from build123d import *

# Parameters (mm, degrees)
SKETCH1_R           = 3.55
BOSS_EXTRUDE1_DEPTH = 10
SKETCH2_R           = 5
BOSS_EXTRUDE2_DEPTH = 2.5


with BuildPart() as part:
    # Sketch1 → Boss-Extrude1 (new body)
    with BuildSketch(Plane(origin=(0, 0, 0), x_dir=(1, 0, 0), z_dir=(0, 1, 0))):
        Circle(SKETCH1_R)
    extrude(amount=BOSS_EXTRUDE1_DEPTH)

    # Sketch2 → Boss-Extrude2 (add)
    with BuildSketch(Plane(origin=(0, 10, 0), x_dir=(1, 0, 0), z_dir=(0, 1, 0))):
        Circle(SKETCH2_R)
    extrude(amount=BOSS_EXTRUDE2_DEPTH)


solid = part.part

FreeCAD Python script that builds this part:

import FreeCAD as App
import Part
import Sketcher

doc = App.newDocument("Part")
params = doc.addObject("Spreadsheet::Sheet", "Params")
for row, (alias, value) in enumerate([
    ("sketch1_diameter", "7.1 mm"),
    ("pad1_length", "10 mm"),
    ("sketch2_diameter", "10 mm"),
    ("pad2_length", "2.5 mm"),
], start=1):
    params.set(f"A{row}", alias)
    params.set(f"B{row}", "=" + value)
    params.setAlias(f"B{row}", alias)

body = doc.addObject("PartDesign::Body", "Body")

# Sketch on XZ plane
sketch1 = body.newObject("Sketcher::SketchObject", "Sketch")
sketch1.AttachmentSupport = (doc.getObject("XZ_Plane"), [""])
sketch1.MapMode = "FlatFace"
sketch1.addGeometry(Part.Circle(App.Vector(0, 0, 0), App.Vector(0, 0, 1), 3.5), False)
sketch1.addConstraint(Sketcher.Constraint("Coincident", 0, 3, -1, 1))
sketch1.addConstraint(Sketcher.Constraint("Diameter", 0, 7.1))
sketch1.setExpression("Constraints[1]", "Params.sketch1_diameter")
pad1 = body.newObject("PartDesign::Pad", "Pad")
pad1.Profile = sketch1
pad1.setExpression("Length", "Params.pad1_length")
pad1.Reversed = True

# Sketch on XZ plane
sketch2 = body.newObject("Sketcher::SketchObject", "Sketch001")
sketch2.AttachmentSupport = (doc.getObject("XZ_Plane"), [""])
sketch2.MapMode = "FlatFace"
sketch2.AttachmentOffset = App.Placement(App.Vector(0, 0, -10), App.Rotation())
sketch2.addGeometry(Part.Circle(App.Vector(0, 0, 0), App.Vector(0, 0, 1), 5), False)
sketch2.addConstraint(Sketcher.Constraint("Coincident", 0, 3, -1, 1))
sketch2.addConstraint(Sketcher.Constraint("Diameter", 0, 10.0))
sketch2.setExpression("Constraints[1]", "Params.sketch2_diameter")
pad2 = body.newObject("PartDesign::Pad", "Pad001")
pad2.Profile = sketch2
pad2.setExpression("Length", "Params.pad2_length")
pad2.Reversed = True

doc.recompute()
